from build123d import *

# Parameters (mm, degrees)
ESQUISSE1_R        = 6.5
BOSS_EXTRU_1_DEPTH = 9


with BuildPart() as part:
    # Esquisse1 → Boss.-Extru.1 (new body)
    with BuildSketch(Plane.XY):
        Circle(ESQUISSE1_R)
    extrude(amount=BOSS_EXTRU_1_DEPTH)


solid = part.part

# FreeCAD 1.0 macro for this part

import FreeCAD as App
import Part
import Sketcher
from FreeCAD import Vector
Q = App.Units.Quantity

doc = App.newDocument("Part")
params = doc.addObject("Spreadsheet::Sheet", "Params")
for row, (alias, value) in enumerate([
    ("sketch1_diameter", "13 mm"),
    ("pad1_length", "9 mm"),
], start=1):
    params.set(f"A{row}", alias)
    params.set(f"B{row}", "=" + value)
    params.setAlias(f"B{row}", alias)

body = doc.addObject("PartDesign::Body", "Body")

# Sketch on XY plane
sketch1 = body.newObject("Sketcher::SketchObject", "Sketch")
sketch1.AttachmentSupport = (doc.getObject("XY_Plane"), [""])
sketch1.MapMode = "FlatFace"
sketch1.addGeometry(Part.Circle(Vector(0, 0, 0), Vector(0, 0, 1), 6), False)
sketch1.addConstraint([
    Sketcher.Constraint("Coincident", 0, 3, -1, 1),
    Sketcher.Constraint("Diameter", 0, Q("13 mm")),
])
sketch1.setExpression("Constraints[1]", "Params.sketch1_diameter")
pad1 = body.newObject("PartDesign::Pad", "Pad")
pad1.Profile = sketch1
pad1.setExpression("Length", "Params.pad1_length")

doc.recompute()
